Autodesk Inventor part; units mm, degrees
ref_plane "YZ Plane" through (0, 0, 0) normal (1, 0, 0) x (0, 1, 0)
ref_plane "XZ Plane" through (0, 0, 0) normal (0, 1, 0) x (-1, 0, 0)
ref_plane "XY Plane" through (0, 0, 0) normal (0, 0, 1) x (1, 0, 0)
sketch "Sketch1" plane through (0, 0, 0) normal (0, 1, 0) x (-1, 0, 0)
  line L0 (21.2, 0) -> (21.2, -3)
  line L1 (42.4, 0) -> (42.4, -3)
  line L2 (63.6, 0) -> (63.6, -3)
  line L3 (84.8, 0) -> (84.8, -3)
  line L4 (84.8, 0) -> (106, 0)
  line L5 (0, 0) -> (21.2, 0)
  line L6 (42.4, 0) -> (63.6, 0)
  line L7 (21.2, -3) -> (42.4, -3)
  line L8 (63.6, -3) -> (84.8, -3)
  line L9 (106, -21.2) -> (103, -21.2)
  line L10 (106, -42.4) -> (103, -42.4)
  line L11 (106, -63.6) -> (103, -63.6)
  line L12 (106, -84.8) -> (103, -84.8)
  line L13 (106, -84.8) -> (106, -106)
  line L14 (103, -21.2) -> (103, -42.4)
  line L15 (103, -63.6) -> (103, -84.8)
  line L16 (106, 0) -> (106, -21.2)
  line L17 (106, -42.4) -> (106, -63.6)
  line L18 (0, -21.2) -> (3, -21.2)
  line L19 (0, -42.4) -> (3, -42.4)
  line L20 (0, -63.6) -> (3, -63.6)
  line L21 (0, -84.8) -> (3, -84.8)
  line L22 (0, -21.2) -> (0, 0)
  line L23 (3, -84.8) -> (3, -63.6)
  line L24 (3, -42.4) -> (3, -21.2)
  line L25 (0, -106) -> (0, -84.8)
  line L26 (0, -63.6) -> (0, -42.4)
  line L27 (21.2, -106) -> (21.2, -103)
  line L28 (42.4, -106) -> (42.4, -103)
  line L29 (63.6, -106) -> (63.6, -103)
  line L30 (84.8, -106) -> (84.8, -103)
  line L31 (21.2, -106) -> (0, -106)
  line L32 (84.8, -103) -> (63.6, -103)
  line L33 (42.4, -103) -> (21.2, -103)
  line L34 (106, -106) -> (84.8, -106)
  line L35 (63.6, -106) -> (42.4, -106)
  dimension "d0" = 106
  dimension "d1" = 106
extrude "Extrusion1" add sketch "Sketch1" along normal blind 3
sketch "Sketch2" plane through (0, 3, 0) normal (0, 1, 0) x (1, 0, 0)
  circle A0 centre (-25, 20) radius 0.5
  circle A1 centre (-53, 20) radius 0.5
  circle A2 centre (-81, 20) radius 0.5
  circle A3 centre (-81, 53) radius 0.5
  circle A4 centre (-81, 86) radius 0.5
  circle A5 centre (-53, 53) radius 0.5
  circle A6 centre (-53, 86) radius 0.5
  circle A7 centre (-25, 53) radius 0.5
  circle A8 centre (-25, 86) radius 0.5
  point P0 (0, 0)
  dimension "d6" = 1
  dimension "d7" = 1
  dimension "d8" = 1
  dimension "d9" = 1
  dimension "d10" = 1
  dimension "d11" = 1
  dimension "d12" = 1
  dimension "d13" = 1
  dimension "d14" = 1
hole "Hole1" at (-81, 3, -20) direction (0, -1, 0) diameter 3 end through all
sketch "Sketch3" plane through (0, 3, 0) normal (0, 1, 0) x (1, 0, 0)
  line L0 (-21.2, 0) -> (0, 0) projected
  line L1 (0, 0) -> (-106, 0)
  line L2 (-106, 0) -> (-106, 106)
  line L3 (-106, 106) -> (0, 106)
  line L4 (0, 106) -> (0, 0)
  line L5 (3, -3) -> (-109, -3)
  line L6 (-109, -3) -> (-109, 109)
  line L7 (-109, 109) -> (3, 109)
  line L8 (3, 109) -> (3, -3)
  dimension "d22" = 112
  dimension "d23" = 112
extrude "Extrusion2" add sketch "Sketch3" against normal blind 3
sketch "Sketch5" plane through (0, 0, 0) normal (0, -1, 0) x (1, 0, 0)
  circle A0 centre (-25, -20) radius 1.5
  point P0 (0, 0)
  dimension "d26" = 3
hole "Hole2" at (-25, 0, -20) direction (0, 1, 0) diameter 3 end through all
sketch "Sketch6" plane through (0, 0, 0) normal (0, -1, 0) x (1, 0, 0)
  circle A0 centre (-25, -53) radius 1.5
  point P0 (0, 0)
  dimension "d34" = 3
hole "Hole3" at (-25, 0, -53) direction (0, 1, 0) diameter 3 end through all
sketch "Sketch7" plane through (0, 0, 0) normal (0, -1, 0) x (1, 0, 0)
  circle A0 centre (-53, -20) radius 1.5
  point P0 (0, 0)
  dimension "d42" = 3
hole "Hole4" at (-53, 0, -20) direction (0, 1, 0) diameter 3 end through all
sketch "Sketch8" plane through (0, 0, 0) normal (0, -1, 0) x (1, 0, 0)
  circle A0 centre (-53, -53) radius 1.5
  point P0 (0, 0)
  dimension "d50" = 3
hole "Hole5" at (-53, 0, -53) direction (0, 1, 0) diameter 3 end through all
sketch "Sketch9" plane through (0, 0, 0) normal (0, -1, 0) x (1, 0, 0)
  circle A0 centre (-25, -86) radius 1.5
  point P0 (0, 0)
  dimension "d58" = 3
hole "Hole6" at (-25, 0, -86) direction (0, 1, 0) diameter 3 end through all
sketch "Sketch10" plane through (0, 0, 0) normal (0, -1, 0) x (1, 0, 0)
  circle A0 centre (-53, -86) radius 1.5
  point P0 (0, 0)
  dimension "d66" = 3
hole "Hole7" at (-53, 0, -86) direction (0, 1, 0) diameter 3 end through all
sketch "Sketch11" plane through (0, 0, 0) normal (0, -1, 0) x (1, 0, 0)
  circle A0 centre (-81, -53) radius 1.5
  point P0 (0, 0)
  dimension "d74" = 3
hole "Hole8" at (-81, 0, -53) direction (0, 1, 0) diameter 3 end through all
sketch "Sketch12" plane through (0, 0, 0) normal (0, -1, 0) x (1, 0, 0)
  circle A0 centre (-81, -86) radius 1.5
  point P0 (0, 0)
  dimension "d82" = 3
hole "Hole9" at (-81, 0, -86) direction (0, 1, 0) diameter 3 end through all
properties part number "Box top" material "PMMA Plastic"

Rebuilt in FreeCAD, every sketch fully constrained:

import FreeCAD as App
import Part
import Sketcher

V = App.Vector
Q = App.Units.Quantity

doc = App.newDocument("Part")
body = doc.addObject("PartDesign::Body", "Body")

# Sketch on XZ plane
sketch1 = body.newObject("Sketcher::SketchObject", "Sketch")
sketch1.AttachmentSupport = (doc.getObject("XZ_Plane"), [""])
sketch1.MapMode = "FlatFace"
sketch1.addGeometry([
    Part.LineSegment(V(-21.2, -3, 0), V(-21.2, 0, 0)),  # 0
    Part.LineSegment(V(-21.2, 0, 0), V(0, 0, 0)),  # 1
    Part.LineSegment(V(0, 0, 0), V(0, -21.2, 0)),  # 2
    Part.LineSegment(V(0, -21.2, 0), V(-3, -21.2, 0)),  # 3
    Part.LineSegment(V(-3, -21.2, 0), V(-3, -42.4, 0)),  # 4
    Part.LineSegment(V(-3, -42.4, 0), V(0, -42.4, 0)),  # 5
    Part.LineSegment(V(0, -42.4, 0), V(0, -63.6, 0)),  # 6
    Part.LineSegment(V(0, -63.6, 0), V(-3, -63.6, 0)),  # 7
    Part.LineSegment(V(-3, -63.6, 0), V(-3, -84.8, 0)),  # 8
    Part.LineSegment(V(-3, -84.8, 0), V(0, -84.8, 0)),  # 9
    Part.LineSegment(V(0, -84.8, 0), V(0, -106, 0)),  # 10
    Part.LineSegment(V(0, -106, 0), V(-21.2, -106, 0)),  # 11
    Part.LineSegment(V(-21.2, -106, 0), V(-21.2, -103, 0)),  # 12
    Part.LineSegment(V(-21.2, -103, 0), V(-42.4, -103, 0)),  # 13
    Part.LineSegment(V(-42.4, -103, 0), V(-42.4, -106, 0)),  # 14
    Part.LineSegment(V(-42.4, -106, 0), V(-63.6, -106, 0)),  # 15
    Part.LineSegment(V(-63.6, -106, 0), V(-63.6, -103, 0)),  # 16
    Part.LineSegment(V(-63.6, -103, 0), V(-84.8, -103, 0)),  # 17
    Part.LineSegment(V(-84.8, -103, 0), V(-84.8, -106, 0)),  # 18
    Part.LineSegment(V(-84.8, -106, 0), V(-106, -106, 0)),  # 19
    Part.LineSegment(V(-106, -106, 0), V(-106, -84.8, 0)),  # 20
    Part.LineSegment(V(-106, -84.8, 0), V(-103, -84.8, 0)),  # 21
    Part.LineSegment(V(-103, -84.8, 0), V(-103, -63.6, 0)),  # 22
    Part.LineSegment(V(-103, -63.6, 0), V(-106, -63.6, 0)),  # 23
    Part.LineSegment(V(-106, -63.6, 0), V(-106, -42.4, 0)),  # 24
    Part.LineSegment(V(-106, -42.4, 0), V(-103, -42.4, 0)),  # 25
    Part.LineSegment(V(-103, -42.4, 0), V(-103, -21.2, 0)),  # 26
    Part.LineSegment(V(-103, -21.2, 0), V(-106, -21.2, 0)),  # 27
    Part.LineSegment(V(-106, -21.2, 0), V(-106, 0, 0)),  # 28
    Part.LineSegment(V(-106, 0, 0), V(-84.8, 0, 0)),  # 29
    Part.LineSegment(V(-84.8, 0, 0), V(-84.8, -3, 0)),  # 30
    Part.LineSegment(V(-84.8, -3, 0), V(-63.6, -3, 0)),  # 31
    Part.LineSegment(V(-63.6, -3, 0), V(-63.6, 0, 0)),  # 32
    Part.LineSegment(V(-63.6, 0, 0), V(-42.4, 0, 0)),  # 33
    Part.LineSegment(V(-42.4, 0, 0), V(-42.4, -3, 0)),  # 34
    Part.LineSegment(V(-42.4, -3, 0), V(-21.2, -3, 0)),  # 35
], False)
sketch1.addConstraint([
    Sketcher.Constraint("Coincident", 0, 2, 1, 1),
    Sketcher.Constraint("Coincident", 1, 2, 2, 1),
    Sketcher.Constraint("Coincident", 2, 2, 3, 1),
    Sketcher.Constraint("Coincident", 3, 2, 4, 1),
    Sketcher.Constraint("Coincident", 4, 2, 5, 1),
    Sketcher.Constraint("Coincident", 5, 2, 6, 1),
    Sketcher.Constraint("Coincident", 6, 2, 7, 1),
    Sketcher.Constraint("Coincident", 7, 2, 8, 1),
    Sketcher.Constraint("Coincident", 8, 2, 9, 1),
    Sketcher.Constraint("Coincident", 9, 2, 10, 1),
    Sketcher.Constraint("Coincident", 10, 2, 11, 1),
    Sketcher.Constraint("Coincident", 11, 2, 12, 1),
    Sketcher.Constraint("Coincident", 12, 2, 13, 1),
    Sketcher.Constraint("Coincident", 13, 2, 14, 1),
    Sketcher.Constraint("Coincident", 14, 2, 15, 1),
    Sketcher.Constraint("Coincident", 15, 2, 16, 1),
    Sketcher.Constraint("Coincident", 16, 2, 17, 1),
    Sketcher.Constraint("Coincident", 17, 2, 18, 1),
    Sketcher.Constraint("Coincident", 18, 2, 19, 1),
    Sketcher.Constraint("Coincident", 19, 2, 20, 1),
    Sketcher.Constraint("Coincident", 20, 2, 21, 1),
    Sketcher.Constraint("Coincident", 21, 2, 22, 1),
    Sketcher.Constraint("Coincident", 22, 2, 23, 1),
    Sketcher.Constraint("Coincident", 23, 2, 24, 1),
    Sketcher.Constraint("Coincident", 24, 2, 25, 1),
    Sketcher.Constraint("Coincident", 25, 2, 26, 1),
    Sketcher.Constraint("Coincident", 26, 2, 27, 1),
    Sketcher.Constraint("Coincident", 27, 2, 28, 1),
    Sketcher.Constraint("Coincident", 28, 2, 29, 1),
    Sketcher.Constraint("Coincident", 29, 2, 30, 1),
    Sketcher.Constraint("Coincident", 30, 2, 31, 1),
    Sketcher.Constraint("Coincident", 31, 2, 32, 1),
    Sketcher.Constraint("Coincident", 32, 2, 33, 1),
    Sketcher.Constraint("Coincident", 33, 2, 34, 1),
    Sketcher.Constraint("Coincident", 34, 2, 35, 1),
    Sketcher.Constraint("Coincident", 35, 2, 0, 1),
    Sketcher.Constraint("Vertical", 0),
    Sketcher.Constraint("Horizontal", 1),
    Sketcher.Constraint("Vertical", 2),
    Sketcher.Constraint("Horizontal", 3),
    Sketcher.Constraint("Vertical", 4),
    Sketcher.Constraint("Horizontal", 5),
    Sketcher.Constraint("Vertical", 6),
    Sketcher.Constraint("Horizontal", 7),
    Sketcher.Constraint("Vertical", 8),
    Sketcher.Constraint("Horizontal", 9),
    Sketcher.Constraint("Vertical", 10),
    Sketcher.Constraint("Horizontal", 11),
    Sketcher.Constraint("Vertical", 12),
    Sketcher.Constraint("Horizontal", 13),
    Sketcher.Constraint("Vertical", 14),
    Sketcher.Constraint("Horizontal", 15),
    Sketcher.Constraint("Vertical", 16),
    Sketcher.Constraint("Horizontal", 17),
    Sketcher.Constraint("Vertical", 18),
    Sketcher.Constraint("Horizontal", 19),
    Sketcher.Constraint("Vertical", 20),
    Sketcher.Constraint("Horizontal", 21),
    Sketcher.Constraint("Vertical", 22),
    Sketcher.Constraint("Horizontal", 23),
    Sketcher.Constraint("Vertical", 24),
    Sketcher.Constraint("Horizontal", 25),
    Sketcher.Constraint("Vertical", 26),
    Sketcher.Constraint("Horizontal", 27),
    Sketcher.Constraint("Vertical", 28),
    Sketcher.Constraint("Horizontal", 29),
    Sketcher.Constraint("Vertical", 30),
    Sketcher.Constraint("Horizontal", 31),
    Sketcher.Constraint("Vertical", 32),
    Sketcher.Constraint("Horizontal", 33),
    Sketcher.Constraint("Vertical", 34),
    Sketcher.Constraint("Horizontal", 35),
    Sketcher.Constraint("Coincident", 1, 2, -1, 1),
    Sketcher.Constraint("PointOnObject", 5, 2, -2),
    Sketcher.Constraint("PointOnObject", 9, 2, -2),
    Sketcher.Constraint("PointOnObject", 28, 2, -1),
    Sketcher.Constraint("PointOnObject", 32, 2, -1),
    Sketcher.Constraint("Horizontal", 11, 2, 14, 2),
    Sketcher.Constraint("Horizontal", 13, 2, 16, 2),
    Sketcher.Constraint("Horizontal", 15, 2, 18, 2),
    Sketcher.Constraint("Horizontal", 9, 2, 20, 2),
    Sketcher.Constraint("Horizontal", 7, 2, 22, 2),
    Sketcher.Constraint("Horizontal", 5, 2, 24, 2),
    Sketcher.Constraint("Horizontal", 3, 2, 26, 2),
    Sketcher.Constraint("Horizontal", 31, 2, 34, 2),
    Sketcher.Constraint("Vertical", 4, 2, 7, 2),
    Sketcher.Constraint("Vertical", 0, 2, 11, 2),
    Sketcher.Constraint("Vertical", 20, 2, 23, 2),
    Sketcher.Constraint("Vertical", 22, 2, 25, 2),
    Sketcher.Constraint("Vertical", 24, 2, 27, 2),
    Sketcher.Constraint("Vertical", 18, 2, 29, 2),
    Sketcher.Constraint("Vertical", 16, 2, 31, 2),
    Sketcher.Constraint("Vertical", 14, 2, 33, 2),
    Sketcher.Constraint("Equal", 11, 13),
    Sketcher.Constraint("Equal", 13, 15),
    Sketcher.Constraint("Equal", 15, 17),
    Sketcher.Constraint("Equal", 17, 19),
    Sketcher.Constraint("Equal", 9, 21),
    Sketcher.Constraint("Equal", 27, 0),
    Sketcher.Constraint("Equal", 35, 2),
    Sketcher.Constraint("Equal", 2, 4),
    Sketcher.Constraint("Equal", 4, 6),
    Sketcher.Constraint("Equal", 6, 8),
    Sketcher.Constraint("Equal", 8, 10),
    Sketcher.Constraint("Equal", 0, 12),
    Sketcher.Constraint("DistanceY", 10, 2, -1, 1, Q("106 mm")),
    Sketcher.Constraint("DistanceX", 3, 2, 3, 1, Q("3 mm")),
])
pad1 = body.newObject("PartDesign::Pad", "Pad")
pad1.Profile = sketch1
pad1.Length = 3
pad1.Reversed = True

# Sketch on XZ plane
sketch2 = body.newObject("Sketcher::SketchObject", "Sketch001")
sketch2.AttachmentSupport = (doc.getObject("XZ_Plane"), [""])
sketch2.MapMode = "FlatFace"
sketch2.AttachmentOffset = App.Placement(V(0, 0, -3), App.Rotation())
sketch2.addGeometry(Part.Circle(V(-81, -20, 0), V(0, 0, 1), 1.5), False)
sketch2.addConstraint([
    Sketcher.Constraint("Diameter", 0, Q("3 mm")),
    Sketcher.Constraint("DistanceX", 0, 3, -1, 1, Q("81 mm")),
    Sketcher.Constraint("DistanceY", 0, 3, -1, 1, Q("20 mm")),
])
doc.recompute()
hole = body.newObject("PartDesign::Hole", "Hole")
hole.Profile = sketch2
hole.ThreadType = "None"
hole.Diameter = 3
hole.DepthType = "ThroughAll"
hole.Reversed = True

# Sketch on XZ plane
sketch3 = body.newObject("Sketcher::SketchObject", "Sketch002")
sketch3.AttachmentSupport = (doc.getObject("XZ_Plane"), [""])
sketch3.MapMode = "FlatFace"
sketch3.AttachmentOffset = App.Placement(V(0, 0, -3), App.Rotation())
sketch3.addGeometry([
    Part.LineSegment(V(-109, 3, 0), V(3, 3, 0)),  # 0
    Part.LineSegment(V(3, 3, 0), V(3, -109, 0)),  # 1
    Part.LineSegment(V(3, -109, 0), V(-109, -109, 0)),  # 2
    Part.LineSegment(V(-109, -109, 0), V(-109, 3, 0)),  # 3
    Part.LineSegment(V(0, 0, 0), V(-106, 0, 0)),  # 4
    Part.LineSegment(V(-106, 0, 0), V(-106, -106, 0)),  # 5
    Part.LineSegment(V(-106, -106, 0), V(0, -106, 0)),  # 6
    Part.LineSegment(V(0, -106, 0), V(0, 0, 0)),  # 7
], False)
sketch3.addConstraint([
    Sketcher.Constraint("Coincident", 0, 2, 1, 1),
    Sketcher.Constraint("Coincident", 1, 2, 2, 1),
    Sketcher.Constraint("Coincident", 2, 2, 3, 1),
    Sketcher.Constraint("Coincident", 3, 2, 0, 1),
    Sketcher.Constraint("Coincident", 4, 2, 5, 1),
    Sketcher.Constraint("Coincident", 5, 2, 6, 1),
    Sketcher.Constraint("Coincident", 6, 2, 7, 1),
    Sketcher.Constraint("Coincident", 7, 2, 4, 1),
    Sketcher.Constraint("Horizontal", 0),
    Sketcher.Constraint("Vertical", 1),
    Sketcher.Constraint("Horizontal", 2),
    Sketcher.Constraint("Vertical", 3),
    Sketcher.Constraint("Horizontal", 4),
    Sketcher.Constraint("Vertical", 5),
    Sketcher.Constraint("Horizontal", 6),
    Sketcher.Constraint("Vertical", 7),
    Sketcher.Constraint("Coincident", 7, 2, -1, 1),
    Sketcher.Constraint("Equal", 2, 1),
    Sketcher.Constraint("Equal", 6, 5),
    Sketcher.Constraint("DistanceX", 0, 1, 0, 2, Q("112 mm")),
    Sketcher.Constraint("DistanceX", 4, 2, 4, 1, Q("106 mm")),
    Sketcher.Constraint("DistanceX", -1, 1, 0, 2, Q("3 mm")),
    Sketcher.Constraint("DistanceY", -1, 1, 0, 2, Q("3 mm")),
])
pad2 = body.newObject("PartDesign::Pad", "Pad001")
pad2.Profile = sketch3
pad2.Length = 3

# Sketch on XZ plane
sketch4 = body.newObject("Sketcher::SketchObject", "Sketch003")
sketch4.AttachmentSupport = (doc.getObject("XZ_Plane"), [""])
sketch4.MapMode = "FlatFace"
sketch4.addGeometry(Part.Circle(V(-25, -20, 0), V(0, 0, 1), 1.5), False)
sketch4.addConstraint([
    Sketcher.Constraint("Diameter", 0, Q("3 mm")),
    Sketcher.Constraint("DistanceX", 0, 3, -1, 1, Q("25 mm")),
    Sketcher.Constraint("DistanceY", 0, 3, -1, 1, Q("20 mm")),
])
doc.recompute()
hole2 = body.newObject("PartDesign::Hole", "Hole001")
hole2.Profile = sketch4
hole2.ThreadType = "None"
hole2.Diameter = 3
hole2.DepthType = "ThroughAll"

# Sketch on XZ plane
sketch5 = body.newObject("Sketcher::SketchObject", "Sketch004")
sketch5.AttachmentSupport = (doc.getObject("XZ_Plane"), [""])
sketch5.MapMode = "FlatFace"
sketch5.addGeometry(Part.Circle(V(-25, -53, 0), V(0, 0, 1), 1.5), False)
sketch5.addConstraint([
    Sketcher.Constraint("Diameter", 0, Q("3 mm")),
    Sketcher.Constraint("DistanceX", 0, 3, -1, 1, Q("25 mm")),
    Sketcher.Constraint("DistanceY", 0, 3, -1, 1, Q("53 mm")),
])
doc.recompute()
hole3 = body.newObject("PartDesign::Hole", "Hole002")
hole3.Profile = sketch5
hole3.ThreadType = "None"
hole3.Diameter = 3
hole3.DepthType = "ThroughAll"

# Sketch on XZ plane
sketch6 = body.newObject("Sketcher::SketchObject", "Sketch005")
sketch6.AttachmentSupport = (doc.getObject("XZ_Plane"), [""])
sketch6.MapMode = "FlatFace"
sketch6.addGeometry(Part.Circle(V(-53, -20, 0), V(0, 0, 1), 1.5), False)
sketch6.addConstraint([
    Sketcher.Constraint("Diameter", 0, Q("3 mm")),
    Sketcher.Constraint("DistanceX", 0, 3, -1, 1, Q("53 mm")),
    Sketcher.Constraint("DistanceY", 0, 3, -1, 1, Q("20 mm")),
])
doc.recompute()
hole4 = body.newObject("PartDesign::Hole", "Hole003")
hole4.Profile = sketch6
hole4.ThreadType = "None"
hole4.Diameter = 3
hole4.DepthType = "ThroughAll"

# Sketch on XZ plane
sketch7 = body.newObject("Sketcher::SketchObject", "Sketch006")
sketch7.AttachmentSupport = (doc.getObject("XZ_Plane"), [""])
sketch7.MapMode = "FlatFace"
sketch7.addGeometry(Part.Circle(V(-53, -53, 0), V(0, 0, 1), 1.5), False)
sketch7.addConstraint([
    Sketcher.Constraint("Diameter", 0, Q("3 mm")),
    Sketcher.Constraint("DistanceX", 0, 3, -1, 1, Q("53 mm")),
    Sketcher.Constraint("DistanceY", 0, 3, -1, 1, Q("53 mm")),
])
doc.recompute()
hole5 = body.newObject("PartDesign::Hole", "Hole004")
hole5.Profile = sketch7
hole5.ThreadType = "None"
hole5.Diameter = 3
hole5.DepthType = "ThroughAll"

# Sketch on XZ plane
sketch8 = body.newObject("Sketcher::SketchObject", "Sketch007")
sketch8.AttachmentSupport = (doc.getObject("XZ_Plane"), [""])
sketch8.MapMode = "FlatFace"
sketch8.addGeometry(Part.Circle(V(-25, -86, 0), V(0, 0, 1), 1.5), False)
sketch8.addConstraint([
    Sketcher.Constraint("Diameter", 0, Q("3 mm")),
    Sketcher.Constraint("DistanceX", 0, 3, -1, 1, Q("25 mm")),
    Sketcher.Constraint("DistanceY", 0, 3, -1, 1, Q("86 mm")),
])
doc.recompute()
hole6 = body.newObject("PartDesign::Hole", "Hole005")
hole6.Profile = sketch8
hole6.ThreadType = "None"
hole6.Diameter = 3
hole6.DepthType = "ThroughAll"

# Sketch on XZ plane
sketch9 = body.newObject("Sketcher::SketchObject", "Sketch008")
sketch9.AttachmentSupport = (doc.getObject("XZ_Plane"), [""])
sketch9.MapMode = "FlatFace"
sketch9.addGeometry(Part.Circle(V(-53, -86, 0), V(0, 0, 1), 1.5), False)
sketch9.addConstraint([
    Sketcher.Constraint("Diameter", 0, Q("3 mm")),
    Sketcher.Constraint("DistanceX", 0, 3, -1, 1, Q("53 mm")),
    Sketcher.Constraint("DistanceY", 0, 3, -1, 1, Q("86 mm")),
])
doc.recompute()
hole7 = body.newObject("PartDesign::Hole", "Hole006")
hole7.Profile = sketch9
hole7.ThreadType = "None"
hole7.Diameter = 3
hole7.DepthType = "ThroughAll"

# Sketch on XZ plane
sketch10 = body.newObject("Sketcher::SketchObject", "Sketch009")
sketch10.AttachmentSupport = (doc.getObject("XZ_Plane"), [""])
sketch10.MapMode = "FlatFace"
sketch10.addGeometry(Part.Circle(V(-81, -53, 0), V(0, 0, 1), 1.5), False)
sketch10.addConstraint([
    Sketcher.Constraint("Diameter", 0, Q("3 mm")),
    Sketcher.Constraint("DistanceX", 0, 3, -1, 1, Q("81 mm")),
    Sketcher.Constraint("DistanceY", 0, 3, -1, 1, Q("53 mm")),
])
doc.recompute()
hole8 = body.newObject("PartDesign::Hole", "Hole007")
hole8.Profile = sketch10
hole8.ThreadType = "None"
hole8.Diameter = 3
hole8.DepthType = "ThroughAll"

# Sketch on XZ plane
sketch11 = body.newObject("Sketcher::SketchObject", "Sketch010")
sketch11.AttachmentSupport = (doc.getObject("XZ_Plane"), [""])
sketch11.MapMode = "FlatFace"
sketch11.addGeometry(Part.Circle(V(-81, -86, 0), V(0, 0, 1), 1.5), False)
sketch11.addConstraint([
    Sketcher.Constraint("Diameter", 0, Q("3 mm")),
    Sketcher.Constraint("DistanceX", 0, 3, -1, 1, Q("81 mm")),
    Sketcher.Constraint("DistanceY", 0, 3, -1, 1, Q("86 mm")),
])
doc.recompute()
hole9 = body.newObject("PartDesign::Hole", "Hole008")
hole9.Profile = sketch11
hole9.ThreadType = "None"
hole9.Diameter = 3
hole9.DepthType = "ThroughAll"

doc.recompute()
